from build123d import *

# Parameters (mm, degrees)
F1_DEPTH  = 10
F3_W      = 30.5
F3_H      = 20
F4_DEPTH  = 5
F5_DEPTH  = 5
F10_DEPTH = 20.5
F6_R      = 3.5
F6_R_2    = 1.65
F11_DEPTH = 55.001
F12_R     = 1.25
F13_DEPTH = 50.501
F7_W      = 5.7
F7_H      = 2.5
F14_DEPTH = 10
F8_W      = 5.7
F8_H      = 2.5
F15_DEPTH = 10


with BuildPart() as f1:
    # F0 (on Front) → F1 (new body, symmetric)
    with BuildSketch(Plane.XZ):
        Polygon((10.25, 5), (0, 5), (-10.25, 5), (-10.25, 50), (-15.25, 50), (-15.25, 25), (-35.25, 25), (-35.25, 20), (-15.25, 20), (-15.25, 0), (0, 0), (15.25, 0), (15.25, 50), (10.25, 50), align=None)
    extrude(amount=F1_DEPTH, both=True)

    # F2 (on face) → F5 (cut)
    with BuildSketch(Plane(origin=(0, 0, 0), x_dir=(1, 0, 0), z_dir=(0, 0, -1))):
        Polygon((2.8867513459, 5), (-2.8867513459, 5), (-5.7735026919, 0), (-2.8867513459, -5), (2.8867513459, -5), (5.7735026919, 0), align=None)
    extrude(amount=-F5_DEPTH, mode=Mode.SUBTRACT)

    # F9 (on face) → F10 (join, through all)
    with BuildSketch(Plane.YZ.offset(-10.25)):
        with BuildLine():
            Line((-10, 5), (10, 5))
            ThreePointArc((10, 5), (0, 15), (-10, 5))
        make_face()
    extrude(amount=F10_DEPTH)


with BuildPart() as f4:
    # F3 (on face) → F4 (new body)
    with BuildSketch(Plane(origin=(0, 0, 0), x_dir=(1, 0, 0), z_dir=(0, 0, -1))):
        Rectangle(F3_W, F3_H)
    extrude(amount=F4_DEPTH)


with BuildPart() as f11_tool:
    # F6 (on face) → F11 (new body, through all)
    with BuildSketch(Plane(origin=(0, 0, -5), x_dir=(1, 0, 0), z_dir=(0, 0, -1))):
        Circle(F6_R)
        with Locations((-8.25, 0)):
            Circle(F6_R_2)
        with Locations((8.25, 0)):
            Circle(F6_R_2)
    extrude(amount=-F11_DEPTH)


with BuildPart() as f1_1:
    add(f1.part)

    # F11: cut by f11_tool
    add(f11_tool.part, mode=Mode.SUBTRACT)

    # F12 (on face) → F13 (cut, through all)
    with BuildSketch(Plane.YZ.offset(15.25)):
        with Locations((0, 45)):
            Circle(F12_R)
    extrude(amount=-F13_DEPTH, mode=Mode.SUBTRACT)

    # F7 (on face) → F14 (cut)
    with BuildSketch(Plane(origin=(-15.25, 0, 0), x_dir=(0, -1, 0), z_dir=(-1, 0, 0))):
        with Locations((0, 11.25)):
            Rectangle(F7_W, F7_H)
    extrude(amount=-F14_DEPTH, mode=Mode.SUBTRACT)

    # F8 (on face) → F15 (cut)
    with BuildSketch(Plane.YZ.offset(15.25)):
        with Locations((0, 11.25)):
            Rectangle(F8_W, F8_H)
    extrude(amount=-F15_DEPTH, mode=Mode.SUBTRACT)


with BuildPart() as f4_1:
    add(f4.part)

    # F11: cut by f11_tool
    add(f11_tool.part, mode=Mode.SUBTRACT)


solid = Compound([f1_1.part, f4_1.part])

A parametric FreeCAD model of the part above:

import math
import FreeCAD as App
import Part
import Sketcher

V = App.Vector
Q = App.Units.Quantity


def add_polygon(sketch, points):
    """Adds a closed chain of lines whose ends are joined by coincident constraints."""
    first, n = sketch.GeometryCount, len(points)
    for a, b in zip(points, points[1:] + points[:1]):
        sketch.addGeometry(Part.LineSegment(App.Vector(*a, 0), App.Vector(*b, 0)), False)
    for i in range(n):
        sketch.addConstraint(Sketcher.Constraint("Coincident", first + i, 2, first + (i + 1) % n, 1))

doc = App.newDocument("Part")
body = doc.addObject("PartDesign::Body", "Body")

# Sketch on XZ plane
sketch1 = doc.addObject("Sketcher::SketchObject", "Sketch")
body.addObject(sketch1)
sketch1.AttachmentSupport = (doc.XZ_Plane, [""])
sketch1.MapMode = "FlatFace"
add_polygon(sketch1, [(10.25, 5), (-10.25, 5), (-10.25, 50), (-15.25, 50), (-15.25, 25), (-35.25, 25), (-35.25, 20), (-15.25, 20), (-15.25, 0), (15.25, 0), (15.25, 50), (10.25, 50)])  # lines 0-11
sketch1.addConstraint(Sketcher.Constraint("Horizontal", 0))
sketch1.addConstraint(Sketcher.Constraint("Vertical", 1))
sketch1.addConstraint(Sketcher.Constraint("Horizontal", 2))
sketch1.addConstraint(Sketcher.Constraint("Vertical", 3))
sketch1.addConstraint(Sketcher.Constraint("Horizontal", 4))
sketch1.addConstraint(Sketcher.Constraint("Vertical", 5))
sketch1.addConstraint(Sketcher.Constraint("Horizontal", 6))
sketch1.addConstraint(Sketcher.Constraint("Vertical", 7))
sketch1.addConstraint(Sketcher.Constraint("Horizontal", 8))
sketch1.addConstraint(Sketcher.Constraint("Vertical", 9))
sketch1.addConstraint(Sketcher.Constraint("Horizontal", 10))
sketch1.addConstraint(Sketcher.Constraint("Vertical", 11))
sketch1.addConstraint(Sketcher.Constraint("Symmetric", 7, 2, 8, 2, -1, 1))
sketch1.addConstraint(Sketcher.Constraint("Symmetric", 2, 2, 9, 2, -2))
sketch1.addConstraint(Sketcher.Constraint("Equal", 2, 10))
sketch1.addConstraint(Sketcher.Constraint("Equal", 10, 5))
sketch1.addConstraint(Sketcher.Constraint("Equal", 6, 7))
sketch1.addConstraint(Sketcher.Constraint("DistanceX", 2, 2, 2, 1, 5.0))
sketch1.addConstraint(Sketcher.Constraint("DistanceX", 4, 2, 4, 1, 20.0))
sketch1.addConstraint(Sketcher.Constraint("DistanceY", 1, 1, 1, 2, 45.0))
sketch1.addConstraint(Sketcher.Constraint("DistanceY", 3, 2, 3, 1, 25.0))
sketch1.addConstraint(Sketcher.Constraint("DistanceX", 0, 2, 0, 1, 20.5))
pad1 = doc.addObject("PartDesign::Pad", "Pad")
body.addObject(pad1)
pad1.Profile = sketch1
pad1.Length = 20
pad1.Midplane = True

# Sketch on XY plane
sketch2 = doc.addObject("Sketcher::SketchObject", "Sketch001")
body.addObject(sketch2)
sketch2.AttachmentSupport = (doc.XY_Plane, [""])
sketch2.MapMode = "FlatFace"
add_polygon(sketch2, [(2.886751, -5), (-2.886751, -5), (-5.773503, 0), (-2.886751, 5), (2.886751, 5), (5.773503, 0)])  # lines 0-5
sketch2.addConstraint(Sketcher.Constraint("Horizontal", 0))
sketch2.addConstraint(Sketcher.Constraint("Horizontal", 3))
sketch2.addConstraint(Sketcher.Constraint("Symmetric", 0, 2, 3, 2, -1, 1))
sketch2.addConstraint(Sketcher.Constraint("Symmetric", 1, 2, 4, 2, -1, 1))
sketch2.addConstraint(Sketcher.Constraint("PointOnObject", 1, 2, -1))
sketch2.addConstraint(Sketcher.Constraint("Parallel", 2, 5))
sketch2.addConstraint(Sketcher.Constraint("Vertical", 0, 2, 2, 2))
sketch2.addConstraint(Sketcher.Constraint("Angle", 1, Q("120 deg")))
sketch2.addConstraint(Sketcher.Constraint("DistanceY", 0, 2, -1, 1, 5.0))
sketch2.addConstraint(Sketcher.Constraint("DistanceX", 0, 2, 0, 1, 5.773503))
pocket1 = doc.addObject("PartDesign::Pocket", "Pocket")
body.addObject(pocket1)
pocket1.Profile = sketch2
pocket1.Length = 5
pocket1.Reversed = True

# Sketch on YZ plane
sketch3 = doc.addObject("Sketcher::SketchObject", "Sketch002")
body.addObject(sketch3)
sketch3.AttachmentSupport = (doc.YZ_Plane, [""])
sketch3.MapMode = "FlatFace"
sketch3.AttachmentOffset = App.Placement(V(0, 0, -10.25), App.Rotation())
sketch3.addGeometry(Part.LineSegment(V(-10, 5, 0), V(10, 5, 0)), False)
sketch3.addGeometry(Part.ArcOfCircle(Part.Circle(V(0, 5, 0), V(0, 0, 1), 10), math.radians(0), math.radians(180)), False)
sketch3.addConstraint(Sketcher.Constraint("Coincident", 0, 1, 1, 2))
sketch3.addConstraint(Sketcher.Constraint("Coincident", 1, 1, 0, 2))
sketch3.addConstraint(Sketcher.Constraint("Horizontal", 0))
sketch3.addConstraint(Sketcher.Constraint("PointOnObject", 1, 3, -2))
sketch3.addConstraint(Sketcher.Constraint("Horizontal", 1, 3, 0, 1))
sketch3.addConstraint(Sketcher.Constraint("Radius", 1, 10.0))
sketch3.addConstraint(Sketcher.Constraint("DistanceY", -1, 1, 1, 3, 5.0))
pad2 = doc.addObject("PartDesign::Pad", "Pad001")
body.addObject(pad2)
pad2.Profile = sketch3
pad2.Type = "UpToLast"
body2 = doc.addObject("PartDesign::Body", "Body001")

# Sketch on XY plane
sketch4 = doc.addObject("Sketcher::SketchObject", "Sketch003")
body2.addObject(sketch4)
sketch4.AttachmentSupport = (doc.getObject("XY_Plane001"), [""])
sketch4.MapMode = "FlatFace"
add_polygon(sketch4, [(-15.25, -10), (-15.25, 10), (15.25, 10), (15.25, -10)])  # lines 0-3
sketch4.addConstraint(Sketcher.Constraint("Vertical", 0))
sketch4.addConstraint(Sketcher.Constraint("Horizontal", 1))
sketch4.addConstraint(Sketcher.Constraint("Vertical", 2))
sketch4.addConstraint(Sketcher.Constraint("Horizontal", 3))
sketch4.addConstraint(Sketcher.Constraint("Symmetric", 0, 2, 2, 2, -1, 1))
sketch4.addConstraint(Sketcher.Constraint("DistanceY", 0, 1, 0, 2, 20.0))
sketch4.addConstraint(Sketcher.Constraint("DistanceX", 1, 1, 1, 2, 30.5))
pad3 = doc.addObject("PartDesign::Pad", "Pad002")
body2.addObject(pad3)
pad3.Profile = sketch4
pad3.Length = 5
pad3.Reversed = True
body3 = doc.addObject("PartDesign::Body", "Body002")
body3.AllowCompound = True

# Sketch on XY plane
sketch5 = doc.addObject("Sketcher::SketchObject", "Sketch004")
body3.addObject(sketch5)
sketch5.AttachmentSupport = (doc.getObject("XY_Plane002"), [""])
sketch5.MapMode = "FlatFace"
sketch5.AttachmentOffset = App.Placement(V(0, 0, -5), App.Rotation())
sketch5.addGeometry(Part.Circle(V(0, 0, 0), V(0, 0, 1), 3.5), False)
sketch5.addGeometry(Part.Circle(V(-8.25, 0, 0), V(0, 0, 1), 1.65), False)
sketch5.addGeometry(Part.Circle(V(8.25, 0, 0), V(0, 0, 1), 1.65), False)
sketch5.addConstraint(Sketcher.Constraint("Coincident", 0, 3, -1, 1))
sketch5.addConstraint(Sketcher.Constraint("Equal", 1, 2))
sketch5.addConstraint(Sketcher.Constraint("Symmetric", 1, 3, 2, 3, -1, 1))
sketch5.addConstraint(Sketcher.Constraint("PointOnObject", 1, 3, -1))
sketch5.addConstraint(Sketcher.Constraint("Diameter", 0, 7.0))
sketch5.addConstraint(Sketcher.Constraint("Diameter", 1, 3.3))
sketch5.addConstraint(Sketcher.Constraint("DistanceX", 1, 3, 2, 3, 16.5))
pad4 = doc.addObject("PartDesign::Pad", "Pad003")
body3.addObject(pad4)
pad4.Profile = sketch5
pad4.Length = 55.001
doc.recompute()

body4 = doc.addObject("PartDesign::Body", "Body003")
body4.BaseFeature = body3
boolean = doc.addObject("PartDesign::Boolean", "Boolean")
body.addObject(boolean)
boolean.Type = "Cut"
boolean.addObjects([body4])
doc.recompute()

# Sketch on YZ plane
sketch6 = doc.addObject("Sketcher::SketchObject", "Sketch005")
body.addObject(sketch6)
sketch6.AttachmentSupport = (doc.YZ_Plane, [""])
sketch6.MapMode = "FlatFace"
sketch6.AttachmentOffset = App.Placement(V(0, 0, 15.25), App.Rotation())
sketch6.addGeometry(Part.Circle(V(0, 45, 0), V(0, 0, 1), 1.25), False)
sketch6.addConstraint(Sketcher.Constraint("PointOnObject", 0, 3, -2))
sketch6.addConstraint(Sketcher.Constraint("Diameter", 0, 2.5))
sketch6.addConstraint(Sketcher.Constraint("DistanceY", -1, 1, 0, 3, 45.0))
pocket2 = doc.addObject("PartDesign::Pocket", "Pocket001")
body.addObject(pocket2)
pocket2.Profile = sketch6
pocket2.Type = "ThroughAll"

# Sketch on YZ plane
sketch7 = doc.addObject("Sketcher::SketchObject", "Sketch006")
body.addObject(sketch7)
sketch7.AttachmentSupport = (doc.YZ_Plane, [""])
sketch7.MapMode = "FlatFace"
sketch7.AttachmentOffset = App.Placement(V(0, 0, -15.25), App.Rotation())
add_polygon(sketch7, [(2.85, 12.5), (2.85, 10), (-2.85, 10), (-2.85, 12.5)])  # lines 0-3
sketch7.addConstraint(Sketcher.Constraint("Vertical", 0))
sketch7.addConstraint(Sketcher.Constraint("Horizontal", 1))
sketch7.addConstraint(Sketcher.Constraint("Vertical", 2))
sketch7.addConstraint(Sketcher.Constraint("Horizontal", 3))
sketch7.addConstraint(Sketcher.Constraint("DistanceX", 1, 2, 1, 1, 5.7))
sketch7.addConstraint(Sketcher.Constraint("DistanceY", 0, 2, 0, 1, 2.5))
sketch7.addConstraint(Sketcher.Constraint("DistanceY", -1, 1, 0, 2, 10.0))
sketch7.addConstraint(Sketcher.Constraint("DistanceX", -1, 1, 0, 2, 2.85))
pocket3 = doc.addObject("PartDesign::Pocket", "Pocket002")
body.addObject(pocket3)
pocket3.Profile = sketch7
pocket3.Length = 10
pocket3.Reversed = True

# Sketch on YZ plane
sketch8 = doc.addObject("Sketcher::SketchObject", "Sketch007")
body.addObject(sketch8)
sketch8.AttachmentSupport = (doc.YZ_Plane, [""])
sketch8.MapMode = "FlatFace"
sketch8.AttachmentOffset = App.Placement(V(0, 0, 15.25), App.Rotation())
add_polygon(sketch8, [(-2.85, 12.5), (-2.85, 10), (2.85, 10), (2.85, 12.5)])  # lines 0-3
sketch8.addConstraint(Sketcher.Constraint("Vertical", 0))
sketch8.addConstraint(Sketcher.Constraint("Horizontal", 1))
sketch8.addConstraint(Sketcher.Constraint("Vertical", 2))
sketch8.addConstraint(Sketcher.Constraint("Horizontal", 3))
sketch8.addConstraint(Sketcher.Constraint("DistanceX", 1, 1, 1, 2, 5.7))
sketch8.addConstraint(Sketcher.Constraint("DistanceY", 0, 2, 0, 1, 2.5))
sketch8.addConstraint(Sketcher.Constraint("DistanceY", -1, 1, 0, 2, 10.0))
sketch8.addConstraint(Sketcher.Constraint("DistanceX", 0, 2, -1, 1, 2.85))
pocket4 = doc.addObject("PartDesign::Pocket", "Pocket003")
body.addObject(pocket4)
pocket4.Profile = sketch8
pocket4.Length = 10
doc.recompute()

boolean2 = doc.addObject("PartDesign::Boolean", "Boolean001")
body2.addObject(boolean2)
boolean2.Type = "Cut"
boolean2.addObjects([body3])

doc.recompute()
